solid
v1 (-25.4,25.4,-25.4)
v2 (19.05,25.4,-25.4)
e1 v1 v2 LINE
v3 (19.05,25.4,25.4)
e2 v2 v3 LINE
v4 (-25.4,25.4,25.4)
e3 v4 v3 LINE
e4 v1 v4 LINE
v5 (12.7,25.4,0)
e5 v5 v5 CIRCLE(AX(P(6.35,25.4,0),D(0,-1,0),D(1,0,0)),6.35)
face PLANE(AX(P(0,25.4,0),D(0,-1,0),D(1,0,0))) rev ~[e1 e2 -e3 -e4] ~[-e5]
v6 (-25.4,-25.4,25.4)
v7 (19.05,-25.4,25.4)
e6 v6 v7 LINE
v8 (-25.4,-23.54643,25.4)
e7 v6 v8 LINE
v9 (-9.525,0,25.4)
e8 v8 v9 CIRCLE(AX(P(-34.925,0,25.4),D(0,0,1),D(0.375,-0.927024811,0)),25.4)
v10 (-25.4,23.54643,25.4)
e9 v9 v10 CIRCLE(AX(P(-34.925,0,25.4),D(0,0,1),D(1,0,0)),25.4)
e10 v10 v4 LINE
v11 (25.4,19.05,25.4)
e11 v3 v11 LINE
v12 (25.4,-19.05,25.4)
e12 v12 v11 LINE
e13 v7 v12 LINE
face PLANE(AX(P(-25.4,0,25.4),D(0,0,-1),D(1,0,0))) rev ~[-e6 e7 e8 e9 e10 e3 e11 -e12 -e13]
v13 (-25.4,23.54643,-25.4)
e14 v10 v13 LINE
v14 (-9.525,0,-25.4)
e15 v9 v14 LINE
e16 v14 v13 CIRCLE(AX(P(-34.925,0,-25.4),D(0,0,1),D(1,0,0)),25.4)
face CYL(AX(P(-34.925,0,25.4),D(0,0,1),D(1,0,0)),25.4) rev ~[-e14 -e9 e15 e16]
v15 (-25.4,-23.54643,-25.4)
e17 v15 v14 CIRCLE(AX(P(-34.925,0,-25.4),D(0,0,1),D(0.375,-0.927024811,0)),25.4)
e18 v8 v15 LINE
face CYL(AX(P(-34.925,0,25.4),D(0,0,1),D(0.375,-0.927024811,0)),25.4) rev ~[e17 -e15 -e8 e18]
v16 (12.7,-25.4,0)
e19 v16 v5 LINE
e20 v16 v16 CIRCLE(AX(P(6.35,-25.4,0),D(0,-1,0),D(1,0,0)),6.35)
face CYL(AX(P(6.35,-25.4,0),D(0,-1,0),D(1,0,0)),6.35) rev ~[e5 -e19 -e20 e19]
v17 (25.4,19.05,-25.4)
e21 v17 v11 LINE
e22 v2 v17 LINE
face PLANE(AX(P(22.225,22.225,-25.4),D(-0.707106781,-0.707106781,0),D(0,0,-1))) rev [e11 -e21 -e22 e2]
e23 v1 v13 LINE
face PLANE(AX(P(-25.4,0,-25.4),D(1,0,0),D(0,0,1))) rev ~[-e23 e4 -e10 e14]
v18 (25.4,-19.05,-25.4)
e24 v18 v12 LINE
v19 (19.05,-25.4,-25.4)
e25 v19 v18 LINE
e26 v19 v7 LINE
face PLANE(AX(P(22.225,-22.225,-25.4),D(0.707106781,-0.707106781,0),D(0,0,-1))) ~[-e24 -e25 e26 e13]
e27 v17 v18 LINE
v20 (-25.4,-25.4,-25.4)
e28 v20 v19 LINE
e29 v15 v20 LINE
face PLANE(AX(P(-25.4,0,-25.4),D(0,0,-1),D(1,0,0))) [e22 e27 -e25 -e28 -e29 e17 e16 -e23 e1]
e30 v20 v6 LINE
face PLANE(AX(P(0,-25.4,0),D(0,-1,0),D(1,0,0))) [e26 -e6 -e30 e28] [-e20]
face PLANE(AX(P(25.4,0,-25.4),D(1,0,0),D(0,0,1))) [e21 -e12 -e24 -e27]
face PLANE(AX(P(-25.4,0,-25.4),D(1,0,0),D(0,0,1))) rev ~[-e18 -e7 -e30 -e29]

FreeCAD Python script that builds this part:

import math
import FreeCAD as App
import Part
import Sketcher
Q = App.Units.Quantity


def edges_at(feature, points):
    """Names of the edges that pass closest to the given points."""
    edges = feature.Shape.Edges
    near = lambda p: min(range(len(edges)), key=lambda i: edges[i].distToShape(Part.Vertex(*p))[0])
    return sorted({f"Edge{near(p) + 1}" for p in points})

doc = App.newDocument("Part")
body = doc.addObject("PartDesign::Body", "Body")

sketch1 = doc.addObject("Sketcher::SketchObject", "Sketch")
body.addObject(sketch1)
sketch1.AttachmentSupport = (doc.XZ_Plane, [""])
sketch1.MapMode = "FlatFace"
sketch1.addGeometry(Part.LineSegment(App.Vector(-25.4, 25.4, 0), App.Vector(-25.4, -25.4, 0)), False)
sketch1.addGeometry(Part.LineSegment(App.Vector(-25.4, -25.4, 0), App.Vector(25.4, -25.4, 0)), False)
sketch1.addGeometry(Part.LineSegment(App.Vector(25.4, -25.4, 0), App.Vector(25.4, 25.4, 0)), False)
sketch1.addGeometry(Part.LineSegment(App.Vector(25.4, 25.4, 0), App.Vector(-25.4, 25.4, 0)), False)
sketch1.addConstraint(Sketcher.Constraint("Coincident", 0, 2, 1, 1))
sketch1.addConstraint(Sketcher.Constraint("Coincident", 1, 2, 2, 1))
sketch1.addConstraint(Sketcher.Constraint("Coincident", 2, 2, 3, 1))
sketch1.addConstraint(Sketcher.Constraint("Coincident", 3, 2, 0, 1))
sketch1.addConstraint(Sketcher.Constraint("Vertical", 0))
sketch1.addConstraint(Sketcher.Constraint("Horizontal", 1))
sketch1.addConstraint(Sketcher.Constraint("Vertical", 2))
sketch1.addConstraint(Sketcher.Constraint("Horizontal", 3))
sketch1.addConstraint(Sketcher.Constraint("Symmetric", 0, 2, 2, 2, -1, 1))
sketch1.addConstraint(Sketcher.Constraint("Equal", 3, 0))
sketch1.addConstraint(Sketcher.Constraint("DistanceX", 1, 1, 1, 2, Q("2 in")))
pad1 = doc.addObject("PartDesign::Pad", "Pad")
body.addObject(pad1)
pad1.Profile = sketch1
pad1.Length = Q("2 in")
pad1.Midplane = True

sketch2 = doc.addObject("Sketcher::SketchObject", "Sketch001")
body.addObject(sketch2)
sketch2.AttachmentSupport = (doc.XY_Plane, [""])
sketch2.MapMode = "FlatFace"
sketch2.AttachmentOffset = App.Placement(App.Vector(0, 0, 1 * 25.4), App.Rotation())
sketch2.addGeometry(Part.ArcOfCircle(Part.Circle(App.Vector(-34.925, 0, 0), App.Vector(0, 0, 1), 25.4), math.radians(-67.975687), math.radians(0)), False)
sketch2.addGeometry(Part.ArcOfCircle(Part.Circle(App.Vector(-34.925, 0, 0), App.Vector(0, 0, 1), 25.4), math.radians(0), math.radians(67.975687)), False)
sketch2.addGeometry(Part.LineSegment(App.Vector(-25.4, 23.54643, 0), App.Vector(-25.4, -23.54643, 0)), False)
sketch2.addConstraint(Sketcher.Constraint("Tangent", 0, 2, 1, 1))
sketch2.addConstraint(Sketcher.Constraint("Coincident", 1, 2, 2, 1))
sketch2.addConstraint(Sketcher.Constraint("Coincident", 2, 2, 0, 1))
sketch2.addConstraint(Sketcher.Constraint("Vertical", 2))
sketch2.addConstraint(Sketcher.Constraint("Equal", 0, 1))
sketch2.addConstraint(Sketcher.Constraint("PointOnObject", 0, 3, -1))
sketch2.addConstraint(Sketcher.Constraint("PointOnObject", 0, 2, -1))
sketch2.addConstraint(Sketcher.Constraint("Radius", 0, Q("1 in")))
sketch2.addConstraint(Sketcher.Constraint("DistanceX", 1, 2, -1, 1, Q("1 in")))
sketch2.addConstraint(Sketcher.Constraint("DistanceX", 0, 3, -1, 1, Q("1.375 in")))
pocket1 = doc.addObject("PartDesign::Pocket", "Pocket")
body.addObject(pocket1)
pocket1.Profile = sketch2
pocket1.Length = Q("2 in")
doc.recompute()

chamfer = doc.addObject("PartDesign::Chamfer", "Chamfer")
body.addObject(chamfer)
chamfer.Base = (pocket1, edges_at(pocket1, [(25.4, -25.4, 0), (25.4, 25.4, 0)]))
chamfer.Size = Q("0.25 in")

sketch3 = doc.addObject("Sketcher::SketchObject", "Sketch002")
body.addObject(sketch3)
sketch3.AttachmentSupport = (doc.XZ_Plane, [""])
sketch3.MapMode = "FlatFace"
sketch3.AttachmentOffset = App.Placement(App.Vector(0, 0, 1 * 25.4), App.Rotation())
sketch3.addGeometry(Part.Circle(App.Vector(6.35, 0, 0), App.Vector(0, 0, 1), 6.35), False)
sketch3.addConstraint(Sketcher.Constraint("PointOnObject", 0, 3, -1))
sketch3.addConstraint(Sketcher.Constraint("Diameter", 0, Q("0.5 in")))
sketch3.addConstraint(Sketcher.Constraint("DistanceX", -1, 1, 0, 3, Q("0.25 in")))
pocket2 = doc.addObject("PartDesign::Pocket", "Pocket001")
body.addObject(pocket2)
pocket2.Profile = sketch3
pocket2.Type = "ThroughAll"

doc.recompute()
